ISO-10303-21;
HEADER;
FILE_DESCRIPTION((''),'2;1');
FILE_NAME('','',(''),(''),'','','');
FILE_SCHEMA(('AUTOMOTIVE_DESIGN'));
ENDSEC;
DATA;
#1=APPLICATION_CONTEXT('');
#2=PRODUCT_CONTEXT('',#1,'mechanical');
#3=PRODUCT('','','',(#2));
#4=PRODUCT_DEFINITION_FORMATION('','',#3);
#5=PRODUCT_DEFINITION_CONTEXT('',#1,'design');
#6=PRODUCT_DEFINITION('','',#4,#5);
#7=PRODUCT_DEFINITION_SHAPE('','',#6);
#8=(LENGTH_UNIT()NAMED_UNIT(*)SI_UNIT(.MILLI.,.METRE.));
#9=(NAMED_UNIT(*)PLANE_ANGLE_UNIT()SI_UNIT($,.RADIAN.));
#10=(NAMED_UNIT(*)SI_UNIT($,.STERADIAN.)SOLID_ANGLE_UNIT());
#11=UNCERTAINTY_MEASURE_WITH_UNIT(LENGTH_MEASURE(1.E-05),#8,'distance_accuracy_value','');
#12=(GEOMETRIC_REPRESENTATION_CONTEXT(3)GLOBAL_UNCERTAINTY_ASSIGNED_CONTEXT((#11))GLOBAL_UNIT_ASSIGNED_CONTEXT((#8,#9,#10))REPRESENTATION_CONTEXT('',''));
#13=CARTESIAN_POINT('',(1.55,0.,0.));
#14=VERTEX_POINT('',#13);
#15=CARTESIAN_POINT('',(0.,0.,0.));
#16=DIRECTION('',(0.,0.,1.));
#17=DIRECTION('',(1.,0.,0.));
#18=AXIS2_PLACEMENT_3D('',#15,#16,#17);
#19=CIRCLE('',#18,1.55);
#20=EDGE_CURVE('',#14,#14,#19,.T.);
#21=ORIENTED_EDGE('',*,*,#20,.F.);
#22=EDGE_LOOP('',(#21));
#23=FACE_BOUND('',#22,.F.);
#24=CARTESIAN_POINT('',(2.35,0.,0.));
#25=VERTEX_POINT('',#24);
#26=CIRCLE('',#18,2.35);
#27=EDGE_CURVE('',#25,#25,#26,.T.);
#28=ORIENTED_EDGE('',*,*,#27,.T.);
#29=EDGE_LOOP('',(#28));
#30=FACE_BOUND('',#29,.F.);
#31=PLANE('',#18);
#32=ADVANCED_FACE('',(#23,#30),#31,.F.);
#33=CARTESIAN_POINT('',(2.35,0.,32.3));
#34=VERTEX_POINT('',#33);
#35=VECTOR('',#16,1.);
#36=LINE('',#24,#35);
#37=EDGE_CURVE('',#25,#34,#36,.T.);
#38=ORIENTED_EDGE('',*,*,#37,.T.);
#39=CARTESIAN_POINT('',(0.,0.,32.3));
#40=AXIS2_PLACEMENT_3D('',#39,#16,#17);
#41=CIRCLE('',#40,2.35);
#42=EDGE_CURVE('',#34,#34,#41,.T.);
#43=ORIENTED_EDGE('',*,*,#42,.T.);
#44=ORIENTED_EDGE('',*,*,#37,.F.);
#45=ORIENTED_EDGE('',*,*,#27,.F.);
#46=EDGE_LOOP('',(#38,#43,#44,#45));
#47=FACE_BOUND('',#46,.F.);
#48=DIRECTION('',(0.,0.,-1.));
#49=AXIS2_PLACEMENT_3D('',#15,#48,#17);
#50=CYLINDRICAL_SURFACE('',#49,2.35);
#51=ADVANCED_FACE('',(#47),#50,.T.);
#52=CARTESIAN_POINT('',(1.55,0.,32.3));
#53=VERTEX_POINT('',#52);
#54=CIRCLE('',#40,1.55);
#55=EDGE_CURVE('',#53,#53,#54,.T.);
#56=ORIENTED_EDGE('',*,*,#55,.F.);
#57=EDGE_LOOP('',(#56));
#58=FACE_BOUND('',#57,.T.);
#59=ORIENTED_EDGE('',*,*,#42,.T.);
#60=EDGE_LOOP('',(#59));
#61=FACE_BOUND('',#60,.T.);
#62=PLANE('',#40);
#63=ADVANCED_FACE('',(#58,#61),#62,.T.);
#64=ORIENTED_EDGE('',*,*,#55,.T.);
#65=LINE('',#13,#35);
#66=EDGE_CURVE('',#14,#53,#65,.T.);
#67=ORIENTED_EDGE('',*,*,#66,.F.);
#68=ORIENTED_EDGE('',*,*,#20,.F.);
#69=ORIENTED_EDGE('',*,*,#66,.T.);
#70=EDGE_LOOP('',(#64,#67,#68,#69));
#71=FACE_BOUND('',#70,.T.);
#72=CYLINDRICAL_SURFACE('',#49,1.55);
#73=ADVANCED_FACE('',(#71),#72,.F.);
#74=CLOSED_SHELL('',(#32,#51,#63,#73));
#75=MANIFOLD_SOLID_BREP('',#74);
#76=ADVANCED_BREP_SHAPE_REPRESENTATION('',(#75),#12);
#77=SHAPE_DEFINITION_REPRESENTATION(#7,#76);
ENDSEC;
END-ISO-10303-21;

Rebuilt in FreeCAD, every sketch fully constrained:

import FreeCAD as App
import Part
import Sketcher
from FreeCAD import Vector

doc = App.newDocument("Part")
body = doc.addObject("PartDesign::Body", "Body")

# Sketch on XY plane
sketch1 = doc.addObject("Sketcher::SketchObject", "Sketch")
body.addObject(sketch1)
sketch1.AttachmentSupport = (doc.XY_Plane, [""])
sketch1.MapMode = "FlatFace"
sketch1.addGeometry(Part.Circle(Vector(0, 0, 0), Vector(0, 0, 1), 2.4), False)
sketch1.addGeometry(Part.Circle(Vector(0, 0, 0), Vector(0, 0, 1), 1.6), False)
sketch1.addConstraint(Sketcher.Constraint("Coincident", 0, 3, -1, 1))
sketch1.addConstraint(Sketcher.Constraint("Coincident", 1, 3, -1, 1))
sketch1.addConstraint(Sketcher.Constraint("Diameter", 1, 3.1))
sketch1.addConstraint(Sketcher.Constraint("Diameter", 0, 4.7))
pad1 = doc.addObject("PartDesign::Pad", "Pad")
body.addObject(pad1)
pad1.Profile = sketch1
pad1.Length = 32.3

doc.recompute()
